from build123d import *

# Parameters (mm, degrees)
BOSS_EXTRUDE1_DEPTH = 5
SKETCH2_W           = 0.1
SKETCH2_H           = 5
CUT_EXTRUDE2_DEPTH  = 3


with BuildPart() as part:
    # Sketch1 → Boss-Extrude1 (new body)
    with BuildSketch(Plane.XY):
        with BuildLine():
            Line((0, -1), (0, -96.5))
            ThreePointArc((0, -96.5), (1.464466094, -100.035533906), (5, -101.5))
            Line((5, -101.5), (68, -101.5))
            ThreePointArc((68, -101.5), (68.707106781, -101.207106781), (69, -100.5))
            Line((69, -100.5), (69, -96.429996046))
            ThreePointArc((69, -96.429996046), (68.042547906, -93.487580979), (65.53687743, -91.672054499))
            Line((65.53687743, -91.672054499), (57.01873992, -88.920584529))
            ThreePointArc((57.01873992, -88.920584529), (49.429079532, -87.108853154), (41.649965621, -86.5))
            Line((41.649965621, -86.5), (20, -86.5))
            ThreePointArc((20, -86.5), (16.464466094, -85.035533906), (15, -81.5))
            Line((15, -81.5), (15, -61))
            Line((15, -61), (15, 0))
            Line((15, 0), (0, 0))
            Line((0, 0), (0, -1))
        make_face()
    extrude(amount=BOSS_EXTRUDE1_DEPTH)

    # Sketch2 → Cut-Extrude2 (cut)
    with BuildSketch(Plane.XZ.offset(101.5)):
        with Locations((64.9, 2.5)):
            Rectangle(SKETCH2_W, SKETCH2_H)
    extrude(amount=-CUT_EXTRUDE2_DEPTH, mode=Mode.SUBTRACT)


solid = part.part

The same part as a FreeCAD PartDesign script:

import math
import FreeCAD as App
import Part
import Sketcher
from FreeCAD import Vector
Q = App.Units.Quantity

doc = App.newDocument("Part")
body = doc.addObject("PartDesign::Body", "Body")

# Sketch on XY plane
sketch1 = body.newObject("Sketcher::SketchObject", "Sketch")
sketch1.AttachmentSupport = (doc.getObject("XY_Plane"), [""])
sketch1.MapMode = "FlatFace"
sketch1.addGeometry(Part.ArcOfCircle(Part.Circle(Vector(5, -96.5, 0), Vector(0, 0, 1), 5), math.radians(180), math.radians(270)), False)
sketch1.addGeometry(Part.LineSegment(Vector(5, -101.5, 0), Vector(68, -101.5, 0)), False)
sketch1.addGeometry(Part.ArcOfCircle(Part.Circle(Vector(68, -100.5, 0), Vector(0, 0, 1), 1), math.radians(-90), math.radians(0)), False)
sketch1.addGeometry(Part.LineSegment(Vector(69, -100.5, 0), Vector(69, -96.429996, 0)), False)
sketch1.addGeometry(Part.ArcOfCircle(Part.Circle(Vector(64, -96.429996, 0), Vector(0, 0, 1), 5), math.radians(0), math.radians(72.098864)), False)
sketch1.addGeometry(Part.LineSegment(Vector(65.536877, -91.672054, 0), Vector(57.01874, -88.920585, 0)), False)
sketch1.addGeometry(Part.ArcOfCircle(Part.Circle(Vector(41.649966, -136.5, 0), Vector(0, 0, 1), 50), math.radians(72.098864), math.radians(90)), False)
sketch1.addGeometry(Part.LineSegment(Vector(41.649966, -86.5, 0), Vector(20, -86.5, 0)), False)
sketch1.addGeometry(Part.ArcOfCircle(Part.Circle(Vector(20, -81.5, 0), Vector(0, 0, 1), 5), math.radians(180), math.radians(270)), False)
sketch1.addGeometry(Part.LineSegment(Vector(15, -81.5, 0), Vector(15, 0, 0)), False)
sketch1.addGeometry(Part.LineSegment(Vector(15, 0, 0), Vector(0, 0, 0)), False)
sketch1.addGeometry(Part.LineSegment(Vector(0, 0, 0), Vector(0, -96.5, 0)), False)
sketch1.addConstraint(Sketcher.Constraint("Tangent", 0, 2, 1, 1))
sketch1.addConstraint(Sketcher.Constraint("Tangent", 1, 2, 2, 1))
sketch1.addConstraint(Sketcher.Constraint("Tangent", 2, 2, 3, 1))
sketch1.addConstraint(Sketcher.Constraint("Tangent", 3, 2, 4, 1))
sketch1.addConstraint(Sketcher.Constraint("Tangent", 4, 2, 5, 1))
sketch1.addConstraint(Sketcher.Constraint("Tangent", 5, 2, 6, 1))
sketch1.addConstraint(Sketcher.Constraint("Tangent", 6, 2, 7, 1))
sketch1.addConstraint(Sketcher.Constraint("Tangent", 7, 2, 8, 2))
sketch1.addConstraint(Sketcher.Constraint("Tangent", 8, 1, 9, 1))
sketch1.addConstraint(Sketcher.Constraint("Coincident", 9, 2, 10, 1))
sketch1.addConstraint(Sketcher.Constraint("Coincident", 10, 2, 11, 1))
sketch1.addConstraint(Sketcher.Constraint("Tangent", 11, 2, 0, 1))
sketch1.addConstraint(Sketcher.Constraint("Horizontal", 1))
sketch1.addConstraint(Sketcher.Constraint("Vertical", 3))
sketch1.addConstraint(Sketcher.Constraint("Horizontal", 7))
sketch1.addConstraint(Sketcher.Constraint("Vertical", 9))
sketch1.addConstraint(Sketcher.Constraint("Horizontal", 10))
sketch1.addConstraint(Sketcher.Constraint("Vertical", 11))
sketch1.addConstraint(Sketcher.Constraint("Coincident", 10, 2, -1, 1))
sketch1.addConstraint(Sketcher.Constraint("Equal", 0, 4))
sketch1.addConstraint(Sketcher.Constraint("Equal", 4, 8))
sketch1.addConstraint(Sketcher.Constraint("Radius", 0, Q("5 mm")))
sketch1.addConstraint(Sketcher.Constraint("Radius", 2, Q("1 mm")))
sketch1.addConstraint(Sketcher.Constraint("Radius", 6, Q("50 mm")))
sketch1.addConstraint(Sketcher.Constraint("DistanceX", 1, 1, 1, 2, Q("63 mm")))
sketch1.addConstraint(Sketcher.Constraint("DistanceX", 10, 2, 10, 1, Q("15 mm")))
sketch1.addConstraint(Sketcher.Constraint("DistanceY", 9, 1, 9, 2, Q("81.5 mm")))
sketch1.addConstraint(Sketcher.Constraint("DistanceY", 11, 2, 11, 1, Q("96.5 mm")))
sketch1.addConstraint(Sketcher.Constraint("DistanceX", 7, 2, 7, 1, Q("21.649966 mm")))
sketch1.addConstraint(Sketcher.Constraint("DistanceY", 3, 1, 3, 2, Q("4.070004 mm")))
pad1 = body.newObject("PartDesign::Pad", "Pad")
pad1.Profile = sketch1
pad1.Length = 5

# Sketch on XZ plane
sketch2 = body.newObject("Sketcher::SketchObject", "Sketch001")
sketch2.AttachmentSupport = (doc.getObject("XZ_Plane"), [""])
sketch2.MapMode = "FlatFace"
sketch2.AttachmentOffset = App.Placement(Vector(0, 0, 101.5), App.Rotation())
sketch2.addGeometry(Part.LineSegment(Vector(64.85, 5, 0), Vector(64.85, 0, 0)), False)
sketch2.addGeometry(Part.LineSegment(Vector(64.85, 0, 0), Vector(64.95, 0, 0)), False)
sketch2.addGeometry(Part.LineSegment(Vector(64.95, 0, 0), Vector(64.95, 5, 0)), False)
sketch2.addGeometry(Part.LineSegment(Vector(64.95, 5, 0), Vector(64.85, 5, 0)), False)
sketch2.addConstraint(Sketcher.Constraint("Coincident", 0, 2, 1, 1))
sketch2.addConstraint(Sketcher.Constraint("Coincident", 1, 2, 2, 1))
sketch2.addConstraint(Sketcher.Constraint("Coincident", 2, 2, 3, 1))
sketch2.addConstraint(Sketcher.Constraint("Coincident", 3, 2, 0, 1))
sketch2.addConstraint(Sketcher.Constraint("Vertical", 0))
sketch2.addConstraint(Sketcher.Constraint("Horizontal", 1))
sketch2.addConstraint(Sketcher.Constraint("Vertical", 2))
sketch2.addConstraint(Sketcher.Constraint("Horizontal", 3))
sketch2.addConstraint(Sketcher.Constraint("PointOnObject", 0, 2, -1))
sketch2.addConstraint(Sketcher.Constraint("DistanceY", 0, 2, 0, 1, Q("5 mm")))
sketch2.addConstraint(Sketcher.Constraint("DistanceX", 1, 1, 1, 2, Q("0.1 mm")))
sketch2.addConstraint(Sketcher.Constraint("DistanceX", -1, 1, 0, 2, Q("64.85 mm")))
pocket1 = body.newObject("PartDesign::Pocket", "Pocket")
pocket1.Profile = sketch2
pocket1.Length = 3

doc.recompute()
